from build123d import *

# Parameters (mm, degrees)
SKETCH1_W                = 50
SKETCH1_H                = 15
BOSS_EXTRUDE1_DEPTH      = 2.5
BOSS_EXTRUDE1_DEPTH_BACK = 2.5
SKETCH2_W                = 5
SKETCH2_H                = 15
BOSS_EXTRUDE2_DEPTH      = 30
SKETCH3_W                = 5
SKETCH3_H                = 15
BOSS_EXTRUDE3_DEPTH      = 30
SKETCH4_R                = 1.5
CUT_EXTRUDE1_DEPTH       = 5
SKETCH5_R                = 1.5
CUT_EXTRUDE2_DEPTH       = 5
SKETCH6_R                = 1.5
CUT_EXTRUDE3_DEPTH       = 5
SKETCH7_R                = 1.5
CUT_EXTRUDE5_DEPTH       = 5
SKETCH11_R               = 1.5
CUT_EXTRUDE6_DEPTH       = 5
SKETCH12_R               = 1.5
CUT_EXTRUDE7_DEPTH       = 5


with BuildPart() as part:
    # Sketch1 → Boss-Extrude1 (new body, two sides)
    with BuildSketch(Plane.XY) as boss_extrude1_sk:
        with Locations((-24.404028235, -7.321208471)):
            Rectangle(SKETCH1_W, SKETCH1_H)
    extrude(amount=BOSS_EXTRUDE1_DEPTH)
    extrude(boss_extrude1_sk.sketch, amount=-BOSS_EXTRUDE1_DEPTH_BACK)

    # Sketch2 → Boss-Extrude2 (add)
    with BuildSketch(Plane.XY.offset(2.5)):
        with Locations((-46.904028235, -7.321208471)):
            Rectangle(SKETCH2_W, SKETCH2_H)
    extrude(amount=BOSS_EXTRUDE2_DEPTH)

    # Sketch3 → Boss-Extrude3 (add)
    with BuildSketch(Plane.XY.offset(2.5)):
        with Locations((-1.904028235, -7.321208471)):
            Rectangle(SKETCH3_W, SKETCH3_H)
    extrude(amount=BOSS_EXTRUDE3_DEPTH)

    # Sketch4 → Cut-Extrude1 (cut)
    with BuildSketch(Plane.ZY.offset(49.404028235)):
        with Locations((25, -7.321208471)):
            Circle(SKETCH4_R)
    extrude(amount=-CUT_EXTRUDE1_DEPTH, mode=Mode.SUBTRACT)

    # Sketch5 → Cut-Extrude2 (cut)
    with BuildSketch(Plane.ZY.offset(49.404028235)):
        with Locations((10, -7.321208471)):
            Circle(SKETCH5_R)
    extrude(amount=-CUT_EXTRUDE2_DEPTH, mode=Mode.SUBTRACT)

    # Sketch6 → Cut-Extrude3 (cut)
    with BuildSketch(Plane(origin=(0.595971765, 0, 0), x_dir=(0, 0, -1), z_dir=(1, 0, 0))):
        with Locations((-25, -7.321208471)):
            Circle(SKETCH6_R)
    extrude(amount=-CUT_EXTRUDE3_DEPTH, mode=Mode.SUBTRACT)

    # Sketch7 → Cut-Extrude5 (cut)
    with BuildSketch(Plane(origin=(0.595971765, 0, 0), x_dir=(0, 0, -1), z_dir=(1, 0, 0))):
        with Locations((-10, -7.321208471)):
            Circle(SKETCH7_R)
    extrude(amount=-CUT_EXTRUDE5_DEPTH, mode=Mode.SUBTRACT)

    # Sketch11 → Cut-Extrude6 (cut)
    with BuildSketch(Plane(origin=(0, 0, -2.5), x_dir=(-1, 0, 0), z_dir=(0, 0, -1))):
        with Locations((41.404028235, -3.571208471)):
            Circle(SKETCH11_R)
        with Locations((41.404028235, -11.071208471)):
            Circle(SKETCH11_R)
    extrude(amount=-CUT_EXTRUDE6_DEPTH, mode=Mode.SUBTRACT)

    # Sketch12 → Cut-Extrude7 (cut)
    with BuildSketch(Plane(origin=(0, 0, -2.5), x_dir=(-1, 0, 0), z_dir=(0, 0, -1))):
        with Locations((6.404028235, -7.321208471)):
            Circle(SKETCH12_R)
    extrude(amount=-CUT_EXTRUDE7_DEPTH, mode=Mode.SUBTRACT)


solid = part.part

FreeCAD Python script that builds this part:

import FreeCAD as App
import Part
import Sketcher
from FreeCAD import Vector

doc = App.newDocument("Part")
body = doc.addObject("PartDesign::Body", "Body")

# Sketch on XY plane
sketch1 = body.newObject("Sketcher::SketchObject", "Sketch")
sketch1.AttachmentSupport = (doc.getObject("XY_Plane"), [""])
sketch1.MapMode = "FlatFace"
sketch1.addGeometry([
    Part.LineSegment(Vector(-49, 0, 0), Vector(-49, -15, 0)),
    Part.LineSegment(Vector(-49, -15, 0), Vector(1, -15, 0)),
    Part.LineSegment(Vector(1, -15, 0), Vector(1, 0, 0)),
    Part.LineSegment(Vector(1, 0, 0), Vector(-49, 0, 0)),
], False)
sketch1.addConstraint([
    Sketcher.Constraint("Coincident", 0, 2, 1, 1),
    Sketcher.Constraint("Coincident", 1, 2, 2, 1),
    Sketcher.Constraint("Coincident", 2, 2, 3, 1),
    Sketcher.Constraint("Coincident", 3, 2, 0, 1),
    Sketcher.Constraint("Vertical", 0),
    Sketcher.Constraint("Horizontal", 1),
    Sketcher.Constraint("Vertical", 2),
    Sketcher.Constraint("Horizontal", 3),
    Sketcher.Constraint("DistanceX", 1, 1, 1, 2, 50.0),
    Sketcher.Constraint("DistanceY", 0, 2, 0, 1, 15.0),
    Sketcher.Constraint("DistanceX", 0, 2, -1, 1, 49.404028),
    Sketcher.Constraint("DistanceY", 0, 2, -1, 1, 14.821208),
])
pad1 = body.newObject("PartDesign::Pad", "Pad")
pad1.Profile = sketch1
pad1.Type = "TwoLengths"
pad1.Length = 2.5
pad1.Length2 = 2.5

# Sketch on XY plane
sketch2 = body.newObject("Sketcher::SketchObject", "Sketch001")
sketch2.AttachmentSupport = (doc.getObject("XY_Plane"), [""])
sketch2.MapMode = "FlatFace"
sketch2.AttachmentOffset = App.Placement(Vector(0, 0, 2.5), App.Rotation())
sketch2.addGeometry([
    Part.LineSegment(Vector(-49, 0, 0), Vector(-49, -15, 0)),
    Part.LineSegment(Vector(-49, -15, 0), Vector(-44, -15, 0)),
    Part.LineSegment(Vector(-44, -15, 0), Vector(-44, 0, 0)),
    Part.LineSegment(Vector(-44, 0, 0), Vector(-49, 0, 0)),
], False)
sketch2.addConstraint([
    Sketcher.Constraint("Coincident", 0, 2, 1, 1),
    Sketcher.Constraint("Coincident", 1, 2, 2, 1),
    Sketcher.Constraint("Coincident", 2, 2, 3, 1),
    Sketcher.Constraint("Coincident", 3, 2, 0, 1),
    Sketcher.Constraint("Vertical", 0),
    Sketcher.Constraint("Horizontal", 1),
    Sketcher.Constraint("Vertical", 2),
    Sketcher.Constraint("Horizontal", 3),
    Sketcher.Constraint("DistanceX", 1, 1, 1, 2, 5.0),
    Sketcher.Constraint("DistanceY", 0, 2, 0, 1, 15.0),
    Sketcher.Constraint("DistanceX", 0, 2, -1, 1, 49.404028),
    Sketcher.Constraint("DistanceY", 0, 2, -1, 1, 14.821208),
])
pad2 = body.newObject("PartDesign::Pad", "Pad001")
pad2.Profile = sketch2
pad2.Length = 30

# Sketch on XY plane
sketch3 = body.newObject("Sketcher::SketchObject", "Sketch002")
sketch3.AttachmentSupport = (doc.getObject("XY_Plane"), [""])
sketch3.MapMode = "FlatFace"
sketch3.AttachmentOffset = App.Placement(Vector(0, 0, 2.5), App.Rotation())
sketch3.addGeometry([
    Part.LineSegment(Vector(-4, 0, 0), Vector(-4, -15, 0)),
    Part.LineSegment(Vector(-4, -15, 0), Vector(1, -15, 0)),
    Part.LineSegment(Vector(1, -15, 0), Vector(1, 0, 0)),
    Part.LineSegment(Vector(1, 0, 0), Vector(-4, 0, 0)),
], False)
sketch3.addConstraint([
    Sketcher.Constraint("Coincident", 0, 2, 1, 1),
    Sketcher.Constraint("Coincident", 1, 2, 2, 1),
    Sketcher.Constraint("Coincident", 2, 2, 3, 1),
    Sketcher.Constraint("Coincident", 3, 2, 0, 1),
    Sketcher.Constraint("Vertical", 0),
    Sketcher.Constraint("Horizontal", 1),
    Sketcher.Constraint("Vertical", 2),
    Sketcher.Constraint("Horizontal", 3),
    Sketcher.Constraint("DistanceX", 1, 1, 1, 2, 5.0),
    Sketcher.Constraint("DistanceY", 0, 2, 0, 1, 15.0),
    Sketcher.Constraint("DistanceX", 0, 2, -1, 1, 4.404028),
    Sketcher.Constraint("DistanceY", 0, 2, -1, 1, 14.821208),
])
pad3 = body.newObject("PartDesign::Pad", "Pad002")
pad3.Profile = sketch3
pad3.Length = 30

# Sketch on YZ plane
sketch4 = body.newObject("Sketcher::SketchObject", "Sketch003")
sketch4.AttachmentSupport = (doc.getObject("YZ_Plane"), [""])
sketch4.MapMode = "FlatFace"
sketch4.AttachmentOffset = App.Placement(Vector(0, 0, -49.404028), App.Rotation())
sketch4.addGeometry(Part.Circle(Vector(-7.3, 25, 0), Vector(0, 0, 1), 1.5), False)
sketch4.addConstraint([
    Sketcher.Constraint("Diameter", 0, 3.0),
    Sketcher.Constraint("DistanceY", -1, 1, 0, 3, 25.0),
    Sketcher.Constraint("DistanceX", 0, 3, -1, 1, 7.321208),
])
pocket1 = body.newObject("PartDesign::Pocket", "Pocket")
pocket1.Profile = sketch4
pocket1.Length = 5
pocket1.Reversed = True

# Sketch on YZ plane
sketch5 = body.newObject("Sketcher::SketchObject", "Sketch004")
sketch5.AttachmentSupport = (doc.getObject("YZ_Plane"), [""])
sketch5.MapMode = "FlatFace"
sketch5.AttachmentOffset = App.Placement(Vector(0, 0, -49.404028), App.Rotation())
sketch5.addGeometry(Part.Circle(Vector(-7.3, 10, 0), Vector(0, 0, 1), 1.5), False)
sketch5.addConstraint([
    Sketcher.Constraint("Diameter", 0, 3.0),
    Sketcher.Constraint("DistanceY", -1, 1, 0, 3, 10.0),
    Sketcher.Constraint("DistanceX", 0, 3, -1, 1, 7.321208),
])
pocket2 = body.newObject("PartDesign::Pocket", "Pocket001")
pocket2.Profile = sketch5
pocket2.Length = 5
pocket2.Reversed = True

# Sketch on YZ plane
sketch6 = body.newObject("Sketcher::SketchObject", "Sketch005")
sketch6.AttachmentSupport = (doc.getObject("YZ_Plane"), [""])
sketch6.MapMode = "FlatFace"
sketch6.AttachmentOffset = App.Placement(Vector(0, 0, 0.595972), App.Rotation())
sketch6.addGeometry(Part.Circle(Vector(-7.3, 25, 0), Vector(0, 0, 1), 1.5), False)
sketch6.addConstraint([
    Sketcher.Constraint("Diameter", 0, 3.0),
    Sketcher.Constraint("DistanceY", -1, 1, 0, 3, 25.0),
    Sketcher.Constraint("DistanceX", 0, 3, -1, 1, 7.321208),
])
pocket3 = body.newObject("PartDesign::Pocket", "Pocket002")
pocket3.Profile = sketch6
pocket3.Length = 5

# Sketch on YZ plane
sketch7 = body.newObject("Sketcher::SketchObject", "Sketch006")
sketch7.AttachmentSupport = (doc.getObject("YZ_Plane"), [""])
sketch7.MapMode = "FlatFace"
sketch7.AttachmentOffset = App.Placement(Vector(0, 0, 0.595972), App.Rotation())
sketch7.addGeometry(Part.Circle(Vector(-7.3, 10, 0), Vector(0, 0, 1), 1.5), False)
sketch7.addConstraint([
    Sketcher.Constraint("Diameter", 0, 3.0),
    Sketcher.Constraint("DistanceY", -1, 1, 0, 3, 10.0),
    Sketcher.Constraint("DistanceX", 0, 3, -1, 1, 7.321208),
])
pocket4 = body.newObject("PartDesign::Pocket", "Pocket003")
pocket4.Profile = sketch7
pocket4.Length = 5

# Sketch on XY plane
sketch8 = body.newObject("Sketcher::SketchObject", "Sketch007")
sketch8.AttachmentSupport = (doc.getObject("XY_Plane"), [""])
sketch8.MapMode = "FlatFace"
sketch8.AttachmentOffset = App.Placement(Vector(0, 0, -2.5), App.Rotation())
sketch8.addGeometry([
    Part.Circle(Vector(-41.4, -3.6, 0), Vector(0, 0, 1), 1.5),
    Part.Circle(Vector(-41.4, -11.1, 0), Vector(0, 0, 1), 1.5),
], False)
sketch8.addConstraint([
    Sketcher.Constraint("Equal", 0, 1),
    Sketcher.Constraint("Vertical", 0, 3, 1, 3),
    Sketcher.Constraint("Diameter", 0, 3.0),
    Sketcher.Constraint("DistanceY", 1, 3, 0, 3, 7.5),
    Sketcher.Constraint("DistanceX", 0, 3, -1, 1, 41.404028),
    Sketcher.Constraint("DistanceY", 0, 3, -1, 1, 3.571208),
])
pocket5 = body.newObject("PartDesign::Pocket", "Pocket004")
pocket5.Profile = sketch8
pocket5.Length = 5
pocket5.Reversed = True

# Sketch on XY plane
sketch9 = body.newObject("Sketcher::SketchObject", "Sketch008")
sketch9.AttachmentSupport = (doc.getObject("XY_Plane"), [""])
sketch9.MapMode = "FlatFace"
sketch9.AttachmentOffset = App.Placement(Vector(0, 0, -2.5), App.Rotation())
sketch9.addGeometry(Part.Circle(Vector(-6.4, -7.3, 0), Vector(0, 0, 1), 1.5), False)
sketch9.addConstraint([
    Sketcher.Constraint("Diameter", 0, 3.0),
    Sketcher.Constraint("DistanceX", 0, 3, -1, 1, 6.404028),
    Sketcher.Constraint("DistanceY", 0, 3, -1, 1, 7.321208),
])
pocket6 = body.newObject("PartDesign::Pocket", "Pocket005")
pocket6.Profile = sketch9
pocket6.Length = 5
pocket6.Reversed = True

doc.recompute()
